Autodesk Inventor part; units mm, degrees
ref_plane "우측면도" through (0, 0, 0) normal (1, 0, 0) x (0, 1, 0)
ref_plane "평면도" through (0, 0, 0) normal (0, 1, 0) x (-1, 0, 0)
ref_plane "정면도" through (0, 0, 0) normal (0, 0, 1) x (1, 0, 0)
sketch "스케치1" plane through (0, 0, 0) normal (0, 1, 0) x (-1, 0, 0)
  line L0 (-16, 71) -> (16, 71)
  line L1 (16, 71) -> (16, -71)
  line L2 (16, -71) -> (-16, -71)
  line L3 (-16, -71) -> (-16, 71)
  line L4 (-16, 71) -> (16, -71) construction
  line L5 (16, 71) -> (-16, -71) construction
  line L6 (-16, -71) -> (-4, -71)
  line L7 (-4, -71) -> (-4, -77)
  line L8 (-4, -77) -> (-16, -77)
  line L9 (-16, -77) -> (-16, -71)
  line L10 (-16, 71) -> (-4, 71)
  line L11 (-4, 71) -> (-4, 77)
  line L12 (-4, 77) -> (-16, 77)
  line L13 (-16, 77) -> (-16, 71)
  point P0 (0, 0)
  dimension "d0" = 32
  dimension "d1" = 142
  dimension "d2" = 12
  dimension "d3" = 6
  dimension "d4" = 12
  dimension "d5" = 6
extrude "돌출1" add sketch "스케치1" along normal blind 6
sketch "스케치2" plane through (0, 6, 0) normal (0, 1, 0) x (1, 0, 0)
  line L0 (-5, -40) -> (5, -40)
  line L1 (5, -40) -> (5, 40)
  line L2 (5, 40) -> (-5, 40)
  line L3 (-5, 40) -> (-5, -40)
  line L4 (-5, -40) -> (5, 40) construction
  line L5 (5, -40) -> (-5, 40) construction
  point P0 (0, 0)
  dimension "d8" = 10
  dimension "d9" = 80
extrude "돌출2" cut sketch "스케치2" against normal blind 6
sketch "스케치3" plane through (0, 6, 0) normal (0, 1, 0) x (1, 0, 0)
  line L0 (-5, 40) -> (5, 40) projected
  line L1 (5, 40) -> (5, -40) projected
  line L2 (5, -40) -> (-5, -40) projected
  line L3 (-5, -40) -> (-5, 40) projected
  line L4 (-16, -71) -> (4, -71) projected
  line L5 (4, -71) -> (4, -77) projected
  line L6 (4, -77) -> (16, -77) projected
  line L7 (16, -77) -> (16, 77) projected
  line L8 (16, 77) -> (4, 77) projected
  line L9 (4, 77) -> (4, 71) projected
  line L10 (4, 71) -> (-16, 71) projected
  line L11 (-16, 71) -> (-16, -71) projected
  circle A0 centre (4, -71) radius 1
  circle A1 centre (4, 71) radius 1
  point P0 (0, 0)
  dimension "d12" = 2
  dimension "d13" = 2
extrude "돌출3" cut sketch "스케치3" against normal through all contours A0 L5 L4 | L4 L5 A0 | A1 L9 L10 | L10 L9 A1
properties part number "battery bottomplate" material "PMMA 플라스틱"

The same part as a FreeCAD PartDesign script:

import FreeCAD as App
import Part
import Sketcher

V = App.Vector


def add_polygon(sketch, points):
    """Adds a closed chain of lines whose ends are joined by coincident constraints."""
    first, n = sketch.GeometryCount, len(points)
    for a, b in zip(points, points[1:] + points[:1]):
        sketch.addGeometry(Part.LineSegment(App.Vector(*a, 0), App.Vector(*b, 0)), False)
    for i in range(n):
        sketch.addConstraint(Sketcher.Constraint("Coincident", first + i, 2, first + (i + 1) % n, 1))

doc = App.newDocument("Part")
body = doc.addObject("PartDesign::Body", "Body")

# Sketch on XZ plane
sketch1 = body.newObject("Sketcher::SketchObject", "Sketch")
sketch1.AttachmentSupport = (doc.getObject("XZ_Plane"), [""])
sketch1.MapMode = "FlatFace"
add_polygon(sketch1, [(16, 77), (16, -77), (4, -77), (4, -71), (-16, -71), (-16, 71), (4, 71), (4, 77)])  # lines 0-7
sketch1.addConstraint([
    Sketcher.Constraint("Vertical", 0),
    Sketcher.Constraint("Horizontal", 1),
    Sketcher.Constraint("Vertical", 2),
    Sketcher.Constraint("Horizontal", 3),
    Sketcher.Constraint("Vertical", 4),
    Sketcher.Constraint("Horizontal", 5),
    Sketcher.Constraint("Vertical", 6),
    Sketcher.Constraint("Horizontal", 7),
    Sketcher.Constraint("Symmetric", 2, 2, 5, 2, -1),
    Sketcher.Constraint("Equal", 2, 6),
    Sketcher.Constraint("DistanceX", 1, 2, 1, 1, 12.0),
    Sketcher.Constraint("DistanceY", 2, 1, 2, 2, 6.0),
    Sketcher.Constraint("DistanceY", 4, 1, 4, 2, 142.0),
    Sketcher.Constraint("DistanceX", 3, 2, 0, 2, 32.0),
    Sketcher.Constraint("DistanceX", -1, 1, 0, 2, 16.0),
])
pad1 = body.newObject("PartDesign::Pad", "Pad")
pad1.Profile = sketch1
pad1.Length = 6
pad1.Reversed = True

# Sketch on XZ plane
sketch2 = body.newObject("Sketcher::SketchObject", "Sketch001")
sketch2.AttachmentSupport = (doc.getObject("XZ_Plane"), [""])
sketch2.MapMode = "FlatFace"
sketch2.AttachmentOffset = App.Placement(V(0, 0, -6), App.Rotation())
add_polygon(sketch2, [(-5, -40), (-5, 40), (5, 40), (5, -40)])  # lines 0-3
sketch2.addConstraint([
    Sketcher.Constraint("Vertical", 0),
    Sketcher.Constraint("Horizontal", 1),
    Sketcher.Constraint("Vertical", 2),
    Sketcher.Constraint("Horizontal", 3),
    Sketcher.Constraint("Symmetric", 0, 2, 2, 2, -1, 1),
    Sketcher.Constraint("DistanceX", 1, 1, 1, 2, 10.0),
    Sketcher.Constraint("DistanceY", 0, 1, 0, 2, 80.0),
])
pocket1 = body.newObject("PartDesign::Pocket", "Pocket")
pocket1.Profile = sketch2
pocket1.Length = 6
pocket1.Reversed = True

# Sketch on XZ plane
sketch3 = body.newObject("Sketcher::SketchObject", "Sketch002")
sketch3.AttachmentSupport = (doc.getObject("XZ_Plane"), [""])
sketch3.MapMode = "FlatFace"
sketch3.AttachmentOffset = App.Placement(V(0, 0, -6), App.Rotation())
sketch3.addGeometry([
    Part.Circle(V(4, 71, 0), V(0, 0, 1), 1),
    Part.Circle(V(4, -71, 0), V(0, 0, 1), 1),
], False)
sketch3.addConstraint([
    Sketcher.Constraint("Equal", 0, 1),
    Sketcher.Constraint("Symmetric", 0, 3, 1, 3, -1),
    Sketcher.Constraint("Diameter", 0, 2.0),
    Sketcher.Constraint("DistanceX", -1, 1, 0, 3, 4.0),
    Sketcher.Constraint("DistanceY", -1, 1, 0, 3, 71.0),
])
pocket2 = body.newObject("PartDesign::Pocket", "Pocket001")
pocket2.Profile = sketch3
pocket2.Type = "ThroughAll"
pocket2.Reversed = True

doc.recompute()
